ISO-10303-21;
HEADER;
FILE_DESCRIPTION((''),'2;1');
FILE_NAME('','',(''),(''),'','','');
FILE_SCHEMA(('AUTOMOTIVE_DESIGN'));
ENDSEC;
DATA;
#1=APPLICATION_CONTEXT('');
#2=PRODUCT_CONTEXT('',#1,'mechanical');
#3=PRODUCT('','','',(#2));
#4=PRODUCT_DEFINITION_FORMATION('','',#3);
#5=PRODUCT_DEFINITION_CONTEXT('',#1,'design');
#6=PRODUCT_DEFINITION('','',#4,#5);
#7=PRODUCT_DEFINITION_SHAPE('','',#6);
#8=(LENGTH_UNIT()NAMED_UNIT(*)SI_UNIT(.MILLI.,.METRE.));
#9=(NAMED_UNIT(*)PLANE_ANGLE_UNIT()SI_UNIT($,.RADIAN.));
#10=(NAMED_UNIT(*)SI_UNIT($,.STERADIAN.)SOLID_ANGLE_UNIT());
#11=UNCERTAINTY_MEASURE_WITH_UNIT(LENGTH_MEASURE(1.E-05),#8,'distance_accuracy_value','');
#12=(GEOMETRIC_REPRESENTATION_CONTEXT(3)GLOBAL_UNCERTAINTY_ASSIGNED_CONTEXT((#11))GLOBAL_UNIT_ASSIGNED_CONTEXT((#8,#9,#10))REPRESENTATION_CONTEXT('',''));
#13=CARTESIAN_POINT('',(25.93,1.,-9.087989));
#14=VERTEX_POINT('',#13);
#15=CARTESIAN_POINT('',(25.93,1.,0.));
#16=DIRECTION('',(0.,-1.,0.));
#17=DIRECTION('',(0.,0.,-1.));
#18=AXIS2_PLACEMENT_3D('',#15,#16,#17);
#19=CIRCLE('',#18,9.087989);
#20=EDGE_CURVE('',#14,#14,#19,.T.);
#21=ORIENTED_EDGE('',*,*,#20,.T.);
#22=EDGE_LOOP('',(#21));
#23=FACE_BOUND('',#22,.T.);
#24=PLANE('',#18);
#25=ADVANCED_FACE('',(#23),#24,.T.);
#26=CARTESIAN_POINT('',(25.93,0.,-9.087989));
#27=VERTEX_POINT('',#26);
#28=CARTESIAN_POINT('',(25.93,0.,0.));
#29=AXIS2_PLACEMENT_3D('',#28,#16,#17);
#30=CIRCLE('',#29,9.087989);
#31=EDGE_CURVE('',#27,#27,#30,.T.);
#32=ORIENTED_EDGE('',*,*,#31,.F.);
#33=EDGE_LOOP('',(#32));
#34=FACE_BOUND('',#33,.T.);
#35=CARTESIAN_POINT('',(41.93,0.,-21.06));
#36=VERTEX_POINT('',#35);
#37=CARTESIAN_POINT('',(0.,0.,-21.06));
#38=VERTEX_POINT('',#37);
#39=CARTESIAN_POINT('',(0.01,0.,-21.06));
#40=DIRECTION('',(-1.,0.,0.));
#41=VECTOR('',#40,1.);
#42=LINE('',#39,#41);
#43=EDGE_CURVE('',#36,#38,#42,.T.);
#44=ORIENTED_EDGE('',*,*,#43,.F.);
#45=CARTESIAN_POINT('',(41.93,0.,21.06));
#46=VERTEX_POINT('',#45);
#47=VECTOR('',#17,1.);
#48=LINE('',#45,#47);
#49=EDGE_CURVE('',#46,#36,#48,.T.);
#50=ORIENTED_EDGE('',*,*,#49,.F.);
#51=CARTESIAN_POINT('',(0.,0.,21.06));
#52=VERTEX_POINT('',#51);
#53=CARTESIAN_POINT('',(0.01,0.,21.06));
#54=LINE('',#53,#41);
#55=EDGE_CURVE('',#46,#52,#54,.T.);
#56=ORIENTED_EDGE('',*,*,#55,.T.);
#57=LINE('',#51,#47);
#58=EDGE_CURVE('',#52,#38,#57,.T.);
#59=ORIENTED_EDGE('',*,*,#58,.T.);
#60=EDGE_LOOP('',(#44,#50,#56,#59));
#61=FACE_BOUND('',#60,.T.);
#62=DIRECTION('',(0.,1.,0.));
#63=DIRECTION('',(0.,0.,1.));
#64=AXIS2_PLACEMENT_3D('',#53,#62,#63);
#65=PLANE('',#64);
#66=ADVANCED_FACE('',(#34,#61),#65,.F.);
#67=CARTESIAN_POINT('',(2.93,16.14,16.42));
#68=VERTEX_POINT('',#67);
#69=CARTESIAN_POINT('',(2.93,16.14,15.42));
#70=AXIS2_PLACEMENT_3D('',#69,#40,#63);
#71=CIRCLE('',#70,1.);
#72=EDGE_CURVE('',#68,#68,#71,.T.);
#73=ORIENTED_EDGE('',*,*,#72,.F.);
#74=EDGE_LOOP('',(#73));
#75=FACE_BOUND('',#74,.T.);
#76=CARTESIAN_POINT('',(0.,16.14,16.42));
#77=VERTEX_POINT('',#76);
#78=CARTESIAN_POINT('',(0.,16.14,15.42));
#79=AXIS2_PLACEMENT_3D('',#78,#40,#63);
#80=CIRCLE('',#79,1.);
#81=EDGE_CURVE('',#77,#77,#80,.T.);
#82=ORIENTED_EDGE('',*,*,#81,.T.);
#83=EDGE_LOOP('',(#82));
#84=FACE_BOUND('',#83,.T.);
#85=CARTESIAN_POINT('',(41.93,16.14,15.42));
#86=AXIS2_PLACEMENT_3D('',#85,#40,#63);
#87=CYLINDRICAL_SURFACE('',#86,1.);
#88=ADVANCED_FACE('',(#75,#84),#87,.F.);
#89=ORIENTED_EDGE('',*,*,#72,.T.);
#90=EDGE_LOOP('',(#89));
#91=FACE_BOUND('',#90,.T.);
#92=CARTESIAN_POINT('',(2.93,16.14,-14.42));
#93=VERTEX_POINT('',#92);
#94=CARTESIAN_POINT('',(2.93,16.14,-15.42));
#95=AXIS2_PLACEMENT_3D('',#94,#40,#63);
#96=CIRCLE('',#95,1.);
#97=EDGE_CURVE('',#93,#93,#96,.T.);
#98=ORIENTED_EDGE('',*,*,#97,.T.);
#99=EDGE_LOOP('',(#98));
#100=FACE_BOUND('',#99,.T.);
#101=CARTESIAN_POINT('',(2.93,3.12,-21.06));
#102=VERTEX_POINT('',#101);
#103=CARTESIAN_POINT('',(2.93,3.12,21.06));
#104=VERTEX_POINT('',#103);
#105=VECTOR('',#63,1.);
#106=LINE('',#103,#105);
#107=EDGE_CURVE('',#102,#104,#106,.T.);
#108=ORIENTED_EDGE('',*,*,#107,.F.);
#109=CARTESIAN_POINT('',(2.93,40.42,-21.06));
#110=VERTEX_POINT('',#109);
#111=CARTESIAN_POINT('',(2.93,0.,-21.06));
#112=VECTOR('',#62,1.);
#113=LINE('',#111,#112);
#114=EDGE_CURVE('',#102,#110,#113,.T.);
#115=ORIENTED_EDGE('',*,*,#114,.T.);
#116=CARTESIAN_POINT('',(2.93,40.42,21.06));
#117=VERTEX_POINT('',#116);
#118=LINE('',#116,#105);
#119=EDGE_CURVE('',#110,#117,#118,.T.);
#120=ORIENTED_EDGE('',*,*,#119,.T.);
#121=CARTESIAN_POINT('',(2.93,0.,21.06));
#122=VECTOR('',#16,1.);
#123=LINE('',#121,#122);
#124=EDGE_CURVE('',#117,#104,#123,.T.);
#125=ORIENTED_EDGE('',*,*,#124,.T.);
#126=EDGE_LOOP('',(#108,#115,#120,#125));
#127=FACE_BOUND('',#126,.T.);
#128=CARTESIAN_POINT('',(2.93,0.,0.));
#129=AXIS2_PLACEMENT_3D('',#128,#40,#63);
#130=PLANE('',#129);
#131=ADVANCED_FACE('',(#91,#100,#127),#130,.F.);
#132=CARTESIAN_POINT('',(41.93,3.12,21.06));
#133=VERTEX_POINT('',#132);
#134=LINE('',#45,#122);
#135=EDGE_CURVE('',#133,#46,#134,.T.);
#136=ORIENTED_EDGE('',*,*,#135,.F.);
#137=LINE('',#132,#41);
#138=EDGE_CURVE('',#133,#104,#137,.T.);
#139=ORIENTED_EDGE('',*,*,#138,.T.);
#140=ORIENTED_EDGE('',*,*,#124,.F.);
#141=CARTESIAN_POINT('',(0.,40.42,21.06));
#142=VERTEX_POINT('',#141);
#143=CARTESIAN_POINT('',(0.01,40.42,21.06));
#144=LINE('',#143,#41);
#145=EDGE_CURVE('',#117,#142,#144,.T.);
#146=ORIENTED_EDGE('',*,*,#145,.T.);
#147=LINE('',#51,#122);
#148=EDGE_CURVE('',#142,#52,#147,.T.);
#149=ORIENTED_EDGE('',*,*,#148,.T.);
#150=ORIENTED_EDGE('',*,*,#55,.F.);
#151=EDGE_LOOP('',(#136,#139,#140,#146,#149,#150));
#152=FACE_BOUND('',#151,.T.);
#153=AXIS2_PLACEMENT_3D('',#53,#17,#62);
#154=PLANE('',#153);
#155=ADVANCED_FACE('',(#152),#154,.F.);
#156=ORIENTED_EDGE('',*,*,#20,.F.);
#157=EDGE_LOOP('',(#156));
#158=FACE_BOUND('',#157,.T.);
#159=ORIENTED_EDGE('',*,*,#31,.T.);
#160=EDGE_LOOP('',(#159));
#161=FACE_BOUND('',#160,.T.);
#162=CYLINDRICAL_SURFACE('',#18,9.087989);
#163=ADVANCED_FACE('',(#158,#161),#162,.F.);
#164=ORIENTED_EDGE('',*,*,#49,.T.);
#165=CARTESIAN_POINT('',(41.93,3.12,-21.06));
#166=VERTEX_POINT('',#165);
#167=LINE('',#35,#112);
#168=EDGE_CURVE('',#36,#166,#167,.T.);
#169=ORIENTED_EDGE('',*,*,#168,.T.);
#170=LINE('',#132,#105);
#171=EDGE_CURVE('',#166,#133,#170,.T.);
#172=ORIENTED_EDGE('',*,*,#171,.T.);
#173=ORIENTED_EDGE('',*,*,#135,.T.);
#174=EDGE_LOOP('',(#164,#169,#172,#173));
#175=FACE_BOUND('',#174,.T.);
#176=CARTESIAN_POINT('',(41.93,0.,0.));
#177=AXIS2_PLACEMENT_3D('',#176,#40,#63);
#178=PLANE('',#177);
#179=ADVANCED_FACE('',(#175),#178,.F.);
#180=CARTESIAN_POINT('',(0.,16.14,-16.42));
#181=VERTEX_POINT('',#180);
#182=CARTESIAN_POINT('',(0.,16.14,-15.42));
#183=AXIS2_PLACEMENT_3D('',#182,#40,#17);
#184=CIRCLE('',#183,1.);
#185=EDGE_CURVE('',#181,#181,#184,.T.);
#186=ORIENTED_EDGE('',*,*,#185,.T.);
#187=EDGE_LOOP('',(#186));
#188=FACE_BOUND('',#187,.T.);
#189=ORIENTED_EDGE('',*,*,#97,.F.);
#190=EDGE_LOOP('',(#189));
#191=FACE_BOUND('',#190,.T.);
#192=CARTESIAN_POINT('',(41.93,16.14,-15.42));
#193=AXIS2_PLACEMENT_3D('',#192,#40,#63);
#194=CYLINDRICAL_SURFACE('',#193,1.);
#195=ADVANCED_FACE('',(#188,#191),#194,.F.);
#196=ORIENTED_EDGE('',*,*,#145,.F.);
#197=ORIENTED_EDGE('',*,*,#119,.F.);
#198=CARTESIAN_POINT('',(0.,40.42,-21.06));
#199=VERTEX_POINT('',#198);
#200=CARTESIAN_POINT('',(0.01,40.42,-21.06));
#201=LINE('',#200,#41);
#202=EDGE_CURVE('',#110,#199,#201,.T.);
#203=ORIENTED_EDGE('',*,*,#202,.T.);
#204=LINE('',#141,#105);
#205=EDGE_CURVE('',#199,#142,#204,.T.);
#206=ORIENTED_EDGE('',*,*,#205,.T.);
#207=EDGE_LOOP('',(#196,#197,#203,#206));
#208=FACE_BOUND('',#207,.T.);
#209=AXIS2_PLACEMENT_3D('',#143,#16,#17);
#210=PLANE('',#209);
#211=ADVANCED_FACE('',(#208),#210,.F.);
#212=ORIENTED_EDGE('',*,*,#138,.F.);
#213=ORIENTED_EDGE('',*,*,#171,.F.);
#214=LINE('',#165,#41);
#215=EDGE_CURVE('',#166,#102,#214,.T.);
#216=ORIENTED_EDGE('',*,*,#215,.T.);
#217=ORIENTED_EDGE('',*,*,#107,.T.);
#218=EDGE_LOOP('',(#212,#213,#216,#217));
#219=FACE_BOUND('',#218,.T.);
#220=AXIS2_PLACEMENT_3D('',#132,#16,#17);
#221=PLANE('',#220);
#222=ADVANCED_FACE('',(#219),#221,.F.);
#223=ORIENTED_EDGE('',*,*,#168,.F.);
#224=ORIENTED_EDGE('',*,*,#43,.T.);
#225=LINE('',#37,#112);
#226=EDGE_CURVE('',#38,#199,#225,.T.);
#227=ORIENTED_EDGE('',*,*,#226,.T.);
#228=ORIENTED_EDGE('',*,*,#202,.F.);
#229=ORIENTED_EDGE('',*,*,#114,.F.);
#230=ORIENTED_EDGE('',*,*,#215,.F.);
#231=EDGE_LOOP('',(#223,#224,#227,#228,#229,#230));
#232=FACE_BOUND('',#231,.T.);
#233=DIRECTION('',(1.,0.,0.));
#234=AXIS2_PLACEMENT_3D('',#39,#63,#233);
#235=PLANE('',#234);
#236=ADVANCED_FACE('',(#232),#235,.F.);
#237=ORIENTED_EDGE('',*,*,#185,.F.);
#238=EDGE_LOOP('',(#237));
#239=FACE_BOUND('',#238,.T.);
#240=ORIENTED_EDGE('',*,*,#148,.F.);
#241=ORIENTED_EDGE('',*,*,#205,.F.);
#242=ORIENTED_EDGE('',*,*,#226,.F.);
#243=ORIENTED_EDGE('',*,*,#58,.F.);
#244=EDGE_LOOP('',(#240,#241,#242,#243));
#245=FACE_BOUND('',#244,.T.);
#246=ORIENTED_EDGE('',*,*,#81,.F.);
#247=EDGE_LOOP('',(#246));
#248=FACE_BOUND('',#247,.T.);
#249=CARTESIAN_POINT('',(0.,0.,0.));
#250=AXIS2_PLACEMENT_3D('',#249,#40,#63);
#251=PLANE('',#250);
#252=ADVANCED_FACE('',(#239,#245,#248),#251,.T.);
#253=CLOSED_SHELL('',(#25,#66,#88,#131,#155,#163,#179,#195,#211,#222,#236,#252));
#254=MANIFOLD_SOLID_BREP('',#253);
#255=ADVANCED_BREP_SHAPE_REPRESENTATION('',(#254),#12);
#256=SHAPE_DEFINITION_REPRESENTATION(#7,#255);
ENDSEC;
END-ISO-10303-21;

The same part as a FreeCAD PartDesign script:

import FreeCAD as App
import Part
import Sketcher
from FreeCAD import Vector
Q = App.Units.Quantity


def add_polygon(sketch, points):
    """Adds a closed chain of lines whose ends are joined by coincident constraints."""
    first, n = sketch.GeometryCount, len(points)
    for a, b in zip(points, points[1:] + points[:1]):
        sketch.addGeometry(Part.LineSegment(App.Vector(*a, 0), App.Vector(*b, 0)), False)
    for i in range(n):
        sketch.addConstraint(Sketcher.Constraint("Coincident", first + i, 2, first + (i + 1) % n, 1))

doc = App.newDocument("Part")
params = doc.addObject("Spreadsheet::Sheet", "Params")
for row, (alias, value) in enumerate([
    ("sketch1_width", "40.42 mm"),
    ("sketch1_height", "42.12 mm"),
    ("pad1_length", "0.01 mm"),
    ("sketch2_width", "40.42 mm"),
    ("sketch2_height", "42.12 mm"),
    ("pad2_length", "2.92 mm"),
    ("sketch3_width", "3.12 mm"),
    ("sketch3_height", "42.12 mm"),
    ("pad3_length", "39 mm"),
    ("sketch4_diameter", "2 mm"),
    ("pocket2_length", "1 mm"),
], start=1):
    params.set(f"A{row}", alias)
    params.set(f"B{row}", "=" + value)
    params.setAlias(f"B{row}", alias)

body = doc.addObject("PartDesign::Body", "Body")

# Sketch on YZ plane
sketch1 = body.newObject("Sketcher::SketchObject", "Sketch")
sketch1.AttachmentSupport = (doc.getObject("YZ_Plane"), [""])
sketch1.MapMode = "FlatFace"
add_polygon(sketch1, [(40.42, 21.06), (0, 21.06), (0, -21.06), (40.42, -21.06)])  # lines 0-3
sketch1.addConstraint(Sketcher.Constraint("Horizontal", 0))
sketch1.addConstraint(Sketcher.Constraint("Vertical", 1))
sketch1.addConstraint(Sketcher.Constraint("Horizontal", 2))
sketch1.addConstraint(Sketcher.Constraint("Vertical", 3))
sketch1.addConstraint(Sketcher.Constraint("Symmetric", 0, 2, 1, 2, -1, 1))
sketch1.addConstraint(Sketcher.Constraint("DistanceX", 0, 2, 0, 1, Q("40.42 mm")))
sketch1.addConstraint(Sketcher.Constraint("DistanceY", 1, 2, 1, 1, Q("42.12 mm")))
sketch1.setExpression("Constraints[9]", "Params.sketch1_width")
sketch1.setExpression("Constraints[10]", "Params.sketch1_height")
pad1 = body.newObject("PartDesign::Pad", "Pad")
pad1.Profile = sketch1
pad1.setExpression("Length", "Params.pad1_length")

# Sketch on YZ plane
sketch2 = body.newObject("Sketcher::SketchObject", "Sketch001")
sketch2.AttachmentSupport = (doc.getObject("YZ_Plane"), [""])
sketch2.MapMode = "FlatFace"
sketch2.AttachmentOffset = App.Placement(Vector(0, 0, 0.01), App.Rotation())
add_polygon(sketch2, [(40.42, 21.06), (0, 21.06), (0, -21.06), (40.42, -21.06)])  # lines 0-3
sketch2.addConstraint(Sketcher.Constraint("Horizontal", 0))
sketch2.addConstraint(Sketcher.Constraint("Vertical", 1))
sketch2.addConstraint(Sketcher.Constraint("Horizontal", 2))
sketch2.addConstraint(Sketcher.Constraint("Vertical", 3))
sketch2.addConstraint(Sketcher.Constraint("Symmetric", 0, 2, 1, 2, -1, 1))
sketch2.addConstraint(Sketcher.Constraint("DistanceX", 0, 2, 0, 1, Q("40.42 mm")))
sketch2.addConstraint(Sketcher.Constraint("DistanceY", 1, 2, 1, 1, Q("42.12 mm")))
sketch2.setExpression("Constraints[9]", "Params.sketch2_width")
sketch2.setExpression("Constraints[10]", "Params.sketch2_height")
pad2 = body.newObject("PartDesign::Pad", "Pad001")
pad2.Profile = sketch2
pad2.setExpression("Length", "Params.pad2_length")

# Sketch on YZ plane
sketch3 = body.newObject("Sketcher::SketchObject", "Sketch002")
sketch3.AttachmentSupport = (doc.getObject("YZ_Plane"), [""])
sketch3.MapMode = "FlatFace"
sketch3.AttachmentOffset = App.Placement(Vector(0, 0, 2.93), App.Rotation())
add_polygon(sketch3, [(3.12, 21.06), (0, 21.06), (0, -21.06), (3.12, -21.06)])  # lines 0-3
sketch3.addConstraint(Sketcher.Constraint("Horizontal", 0))
sketch3.addConstraint(Sketcher.Constraint("Vertical", 1))
sketch3.addConstraint(Sketcher.Constraint("Horizontal", 2))
sketch3.addConstraint(Sketcher.Constraint("Vertical", 3))
sketch3.addConstraint(Sketcher.Constraint("Symmetric", 0, 2, 1, 2, -1, 1))
sketch3.addConstraint(Sketcher.Constraint("DistanceX", 0, 2, 0, 1, Q("3.12 mm")))
sketch3.addConstraint(Sketcher.Constraint("DistanceY", 1, 2, 1, 1, Q("42.12 mm")))
sketch3.setExpression("Constraints[9]", "Params.sketch3_width")
sketch3.setExpression("Constraints[10]", "Params.sketch3_height")
pad3 = body.newObject("PartDesign::Pad", "Pad002")
pad3.Profile = sketch3
pad3.setExpression("Length", "Params.pad3_length")

# Sketch on YZ plane
sketch4 = body.newObject("Sketcher::SketchObject", "Sketch003")
sketch4.AttachmentSupport = (doc.getObject("YZ_Plane"), [""])
sketch4.MapMode = "FlatFace"
sketch4.addGeometry(Part.Circle(Vector(16.14, 15.42, 0), Vector(0, 0, 1), 1), False)
sketch4.addGeometry(Part.Circle(Vector(16.14, -15.42, 0), Vector(0, 0, 1), 1), False)
sketch4.addConstraint(Sketcher.Constraint("Equal", 0, 1))
sketch4.addConstraint(Sketcher.Constraint("Symmetric", 0, 3, 1, 3, -1))
sketch4.addConstraint(Sketcher.Constraint("Diameter", 0, Q("2 mm")))
sketch4.addConstraint(Sketcher.Constraint("DistanceX", -1, 1, 0, 3, Q("16.14 mm")))
sketch4.addConstraint(Sketcher.Constraint("DistanceY", -1, 1, 0, 3, Q("15.42 mm")))
sketch4.setExpression("Constraints[2]", "Params.sketch4_diameter")
pocket1 = body.newObject("PartDesign::Pocket", "Pocket")
pocket1.Profile = sketch4
pocket1.Type = "ThroughAll"
pocket1.Reversed = True

# Sketch on XZ plane
sketch5 = body.newObject("Sketcher::SketchObject", "Sketch004")
sketch5.AttachmentSupport = (doc.getObject("XZ_Plane"), [""])
sketch5.MapMode = "FlatFace"
sketch5.addGeometry(Part.Circle(Vector(25.93, 0, 0), Vector(0, 0, 1), 9.087989), False)
sketch5.addConstraint(Sketcher.Constraint("PointOnObject", 0, 3, -1))
sketch5.addConstraint(Sketcher.Constraint("Diameter", 0, Q("18.175978 mm")))
sketch5.addConstraint(Sketcher.Constraint("DistanceX", -1, 1, 0, 3, Q("25.93 mm")))
pocket2 = body.newObject("PartDesign::Pocket", "Pocket001")
pocket2.Profile = sketch5
pocket2.setExpression("Length", "Params.pocket2_length")

doc.recompute()
